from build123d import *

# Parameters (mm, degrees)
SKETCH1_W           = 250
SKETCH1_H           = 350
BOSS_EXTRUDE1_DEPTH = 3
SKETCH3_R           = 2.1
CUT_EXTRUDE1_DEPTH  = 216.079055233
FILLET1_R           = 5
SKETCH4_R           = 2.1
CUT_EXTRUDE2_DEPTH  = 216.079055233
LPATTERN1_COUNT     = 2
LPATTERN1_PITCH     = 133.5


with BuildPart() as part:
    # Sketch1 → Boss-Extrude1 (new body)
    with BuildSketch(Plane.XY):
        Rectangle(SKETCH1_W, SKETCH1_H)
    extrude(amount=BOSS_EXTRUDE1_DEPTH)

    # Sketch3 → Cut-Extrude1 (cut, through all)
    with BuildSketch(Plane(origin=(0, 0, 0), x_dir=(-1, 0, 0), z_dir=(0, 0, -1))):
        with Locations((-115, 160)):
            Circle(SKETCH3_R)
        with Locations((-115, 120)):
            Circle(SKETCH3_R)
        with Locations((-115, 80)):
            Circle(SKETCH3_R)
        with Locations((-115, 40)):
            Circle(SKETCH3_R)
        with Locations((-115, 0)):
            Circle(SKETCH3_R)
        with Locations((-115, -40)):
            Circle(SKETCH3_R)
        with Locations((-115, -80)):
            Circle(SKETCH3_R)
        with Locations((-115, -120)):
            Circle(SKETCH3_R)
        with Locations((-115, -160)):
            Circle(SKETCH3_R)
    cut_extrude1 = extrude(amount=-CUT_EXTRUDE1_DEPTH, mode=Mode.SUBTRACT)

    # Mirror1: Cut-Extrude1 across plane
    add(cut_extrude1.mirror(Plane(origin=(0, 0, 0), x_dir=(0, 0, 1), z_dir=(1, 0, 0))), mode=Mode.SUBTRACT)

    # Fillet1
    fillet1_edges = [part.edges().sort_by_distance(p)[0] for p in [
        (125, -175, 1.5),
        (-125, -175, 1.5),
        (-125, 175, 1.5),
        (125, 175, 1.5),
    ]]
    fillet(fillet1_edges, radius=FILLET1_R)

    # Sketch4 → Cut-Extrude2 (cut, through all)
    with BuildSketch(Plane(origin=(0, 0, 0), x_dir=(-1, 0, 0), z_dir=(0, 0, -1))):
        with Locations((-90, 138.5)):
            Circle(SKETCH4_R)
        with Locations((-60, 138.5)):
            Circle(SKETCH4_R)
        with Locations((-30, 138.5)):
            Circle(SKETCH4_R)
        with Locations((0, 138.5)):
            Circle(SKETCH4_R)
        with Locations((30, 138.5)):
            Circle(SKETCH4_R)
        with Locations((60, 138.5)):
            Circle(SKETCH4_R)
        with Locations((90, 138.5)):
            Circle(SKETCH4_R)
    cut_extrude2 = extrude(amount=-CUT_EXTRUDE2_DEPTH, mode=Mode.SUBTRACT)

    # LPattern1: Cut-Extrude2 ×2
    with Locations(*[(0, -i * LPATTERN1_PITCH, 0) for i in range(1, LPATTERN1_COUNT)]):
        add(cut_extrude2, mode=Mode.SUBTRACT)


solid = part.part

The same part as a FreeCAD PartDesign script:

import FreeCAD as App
import Part
import Sketcher

V = App.Vector
Q = App.Units.Quantity


def edges_at(feature, points):
    """Names of the edges that pass closest to the given points."""
    edges = feature.Shape.Edges
    near = lambda p: min(range(len(edges)), key=lambda i: edges[i].distToShape(Part.Vertex(*p))[0])
    return sorted({f"Edge{near(p) + 1}" for p in points})


def add_polygon(sketch, points):
    """Adds a closed chain of lines whose ends are joined by coincident constraints."""
    first, n = sketch.GeometryCount, len(points)
    for a, b in zip(points, points[1:] + points[:1]):
        sketch.addGeometry(Part.LineSegment(App.Vector(*a, 0), App.Vector(*b, 0)), False)
    for i in range(n):
        sketch.addConstraint(Sketcher.Constraint("Coincident", first + i, 2, first + (i + 1) % n, 1))

doc = App.newDocument("Part")
body = doc.addObject("PartDesign::Body", "Body")

sketch1 = body.newObject("Sketcher::SketchObject", "Sketch")
sketch1.AttachmentSupport = (doc.getObject("XY_Plane"), [""])
sketch1.MapMode = "FlatFace"
add_polygon(sketch1, [(-125, 175), (-125, -175), (125, -175), (125, 175)])
sketch1.addConstraint(Sketcher.Constraint("Vertical", 0))
sketch1.addConstraint(Sketcher.Constraint("Horizontal", 1))
sketch1.addConstraint(Sketcher.Constraint("Vertical", 2))
sketch1.addConstraint(Sketcher.Constraint("Horizontal", 3))
sketch1.addConstraint(Sketcher.Constraint("Symmetric", 0, 2, 2, 2, -1, 1))
sketch1.addConstraint(Sketcher.Constraint("DistanceX", 1, 1, 1, 2, Q("250 mm")))
sketch1.addConstraint(Sketcher.Constraint("DistanceY", 0, 2, 0, 1, Q("350 mm")))
pad1 = body.newObject("PartDesign::Pad", "Pad")
pad1.Profile = sketch1
pad1.Length = 3

sketch2 = body.newObject("Sketcher::SketchObject", "Sketch001")
sketch2.AttachmentSupport = (doc.getObject("XY_Plane"), [""])
sketch2.MapMode = "FlatFace"
sketch2.addGeometry(Part.Circle(V(115, 160, 0), V(0, 0, 1), 2.1), False)
sketch2.addGeometry(Part.Circle(V(115, 120, 0), V(0, 0, 1), 2.1), False)
sketch2.addGeometry(Part.Circle(V(115, 80, 0), V(0, 0, 1), 2.1), False)
sketch2.addGeometry(Part.Circle(V(115, 40, 0), V(0, 0, 1), 2.1), False)
sketch2.addGeometry(Part.Circle(V(115, 0, 0), V(0, 0, 1), 2.1), False)
sketch2.addGeometry(Part.Circle(V(115, -40, 0), V(0, 0, 1), 2.1), False)
sketch2.addGeometry(Part.Circle(V(115, -80, 0), V(0, 0, 1), 2.1), False)
sketch2.addGeometry(Part.Circle(V(115, -120, 0), V(0, 0, 1), 2.1), False)
sketch2.addGeometry(Part.Circle(V(115, -160, 0), V(0, 0, 1), 2.1), False)
sketch2.addConstraint(Sketcher.Constraint("Equal", 0, 1))
sketch2.addConstraint(Sketcher.Constraint("Equal", 1, 2))
sketch2.addConstraint(Sketcher.Constraint("Equal", 2, 3))
sketch2.addConstraint(Sketcher.Constraint("Equal", 3, 4))
sketch2.addConstraint(Sketcher.Constraint("Equal", 4, 5))
sketch2.addConstraint(Sketcher.Constraint("Equal", 5, 6))
sketch2.addConstraint(Sketcher.Constraint("Equal", 6, 7))
sketch2.addConstraint(Sketcher.Constraint("Equal", 7, 8))
sketch2.addConstraint(Sketcher.Constraint("Symmetric", 3, 3, 5, 3, -1))
sketch2.addConstraint(Sketcher.Constraint("Symmetric", 2, 3, 6, 3, -1))
sketch2.addConstraint(Sketcher.Constraint("Symmetric", 1, 3, 7, 3, -1))
sketch2.addConstraint(Sketcher.Constraint("Symmetric", 0, 3, 8, 3, -1))
sketch2.addConstraint(Sketcher.Constraint("PointOnObject", 4, 3, -1))
sketch2.addConstraint(Sketcher.Constraint("Vertical", 0, 3, 1, 3))
sketch2.addConstraint(Sketcher.Constraint("Vertical", 1, 3, 2, 3))
sketch2.addConstraint(Sketcher.Constraint("Vertical", 2, 3, 3, 3))
sketch2.addConstraint(Sketcher.Constraint("Vertical", 3, 3, 4, 3))
sketch2.addConstraint(Sketcher.Constraint("Diameter", 0, Q("4.2 mm")))
sketch2.addConstraint(Sketcher.Constraint("DistanceX", -1, 1, 0, 3, Q("115 mm")))
sketch2.addConstraint(Sketcher.Constraint("DistanceY", -1, 1, 0, 3, Q("160 mm")))
sketch2.addConstraint(Sketcher.Constraint("DistanceY", -1, 1, 1, 3, Q("120 mm")))
sketch2.addConstraint(Sketcher.Constraint("DistanceY", -1, 1, 2, 3, Q("80 mm")))
sketch2.addConstraint(Sketcher.Constraint("DistanceY", -1, 1, 3, 3, Q("40 mm")))
pocket1 = body.newObject("PartDesign::Pocket", "Pocket")
pocket1.Profile = sketch2
pocket1.Type = "ThroughAll"
pocket1.Reversed = True
doc.recompute()

mirrored = body.newObject("PartDesign::Mirrored", "Mirrored")
mirrored.Originals = [pocket1]
mirrored.MirrorPlane = (doc.getObject("YZ_Plane"), [""])
body.Tip = mirrored
doc.recompute()

fillet = body.newObject("PartDesign::Fillet", "Fillet")
fillet.Base = (mirrored, edges_at(mirrored, [
    (125, -175, 1.5),
    (-125, -175, 1.5),
    (-125, 175, 1.5),
    (125, 175, 1.5),
]))
fillet.Radius = 5

sketch3 = body.newObject("Sketcher::SketchObject", "Sketch002")
sketch3.AttachmentSupport = (doc.getObject("XY_Plane"), [""])
sketch3.MapMode = "FlatFace"
sketch3.addGeometry(Part.Circle(V(90, 138.5, 0), V(0, 0, 1), 2.1), False)
sketch3.addGeometry(Part.Circle(V(60, 138.5, 0), V(0, 0, 1), 2.1), False)
sketch3.addGeometry(Part.Circle(V(30, 138.5, 0), V(0, 0, 1), 2.1), False)
sketch3.addGeometry(Part.Circle(V(0, 138.5, 0), V(0, 0, 1), 2.1), False)
sketch3.addGeometry(Part.Circle(V(-30, 138.5, 0), V(0, 0, 1), 2.1), False)
sketch3.addGeometry(Part.Circle(V(-60, 138.5, 0), V(0, 0, 1), 2.1), False)
sketch3.addGeometry(Part.Circle(V(-90, 138.5, 0), V(0, 0, 1), 2.1), False)
sketch3.addConstraint(Sketcher.Constraint("Equal", 0, 1))
sketch3.addConstraint(Sketcher.Constraint("Equal", 1, 2))
sketch3.addConstraint(Sketcher.Constraint("Equal", 2, 3))
sketch3.addConstraint(Sketcher.Constraint("Equal", 3, 4))
sketch3.addConstraint(Sketcher.Constraint("Equal", 4, 5))
sketch3.addConstraint(Sketcher.Constraint("Equal", 5, 6))
sketch3.addConstraint(Sketcher.Constraint("Symmetric", 2, 3, 4, 3, -2))
sketch3.addConstraint(Sketcher.Constraint("Symmetric", 1, 3, 5, 3, -2))
sketch3.addConstraint(Sketcher.Constraint("Symmetric", 0, 3, 6, 3, -2))
sketch3.addConstraint(Sketcher.Constraint("PointOnObject", 3, 3, -2))
sketch3.addConstraint(Sketcher.Constraint("Horizontal", 0, 3, 1, 3))
sketch3.addConstraint(Sketcher.Constraint("Horizontal", 1, 3, 2, 3))
sketch3.addConstraint(Sketcher.Constraint("Horizontal", 2, 3, 3, 3))
sketch3.addConstraint(Sketcher.Constraint("Diameter", 0, Q("4.2 mm")))
sketch3.addConstraint(Sketcher.Constraint("DistanceX", -1, 1, 0, 3, Q("90 mm")))
sketch3.addConstraint(Sketcher.Constraint("DistanceX", -1, 1, 1, 3, Q("60 mm")))
sketch3.addConstraint(Sketcher.Constraint("DistanceX", -1, 1, 2, 3, Q("30 mm")))
sketch3.addConstraint(Sketcher.Constraint("DistanceY", -1, 1, 0, 3, Q("138.5 mm")))
pocket2 = body.newObject("PartDesign::Pocket", "Pocket001")
pocket2.Profile = sketch3
pocket2.Type = "ThroughAll"
pocket2.Reversed = True
doc.recompute()

linearpattern = body.newObject("PartDesign::LinearPattern", "LinearPattern")
linearpattern.Originals = [pocket2]
linearpattern.Direction = (doc.getObject("Y_Axis"), [""])
linearpattern.Mode = "offset"
linearpattern.Offset = 133.5
linearpattern.Occurrences = 2
linearpattern.Reversed = True
body.Tip = linearpattern

doc.recompute()
